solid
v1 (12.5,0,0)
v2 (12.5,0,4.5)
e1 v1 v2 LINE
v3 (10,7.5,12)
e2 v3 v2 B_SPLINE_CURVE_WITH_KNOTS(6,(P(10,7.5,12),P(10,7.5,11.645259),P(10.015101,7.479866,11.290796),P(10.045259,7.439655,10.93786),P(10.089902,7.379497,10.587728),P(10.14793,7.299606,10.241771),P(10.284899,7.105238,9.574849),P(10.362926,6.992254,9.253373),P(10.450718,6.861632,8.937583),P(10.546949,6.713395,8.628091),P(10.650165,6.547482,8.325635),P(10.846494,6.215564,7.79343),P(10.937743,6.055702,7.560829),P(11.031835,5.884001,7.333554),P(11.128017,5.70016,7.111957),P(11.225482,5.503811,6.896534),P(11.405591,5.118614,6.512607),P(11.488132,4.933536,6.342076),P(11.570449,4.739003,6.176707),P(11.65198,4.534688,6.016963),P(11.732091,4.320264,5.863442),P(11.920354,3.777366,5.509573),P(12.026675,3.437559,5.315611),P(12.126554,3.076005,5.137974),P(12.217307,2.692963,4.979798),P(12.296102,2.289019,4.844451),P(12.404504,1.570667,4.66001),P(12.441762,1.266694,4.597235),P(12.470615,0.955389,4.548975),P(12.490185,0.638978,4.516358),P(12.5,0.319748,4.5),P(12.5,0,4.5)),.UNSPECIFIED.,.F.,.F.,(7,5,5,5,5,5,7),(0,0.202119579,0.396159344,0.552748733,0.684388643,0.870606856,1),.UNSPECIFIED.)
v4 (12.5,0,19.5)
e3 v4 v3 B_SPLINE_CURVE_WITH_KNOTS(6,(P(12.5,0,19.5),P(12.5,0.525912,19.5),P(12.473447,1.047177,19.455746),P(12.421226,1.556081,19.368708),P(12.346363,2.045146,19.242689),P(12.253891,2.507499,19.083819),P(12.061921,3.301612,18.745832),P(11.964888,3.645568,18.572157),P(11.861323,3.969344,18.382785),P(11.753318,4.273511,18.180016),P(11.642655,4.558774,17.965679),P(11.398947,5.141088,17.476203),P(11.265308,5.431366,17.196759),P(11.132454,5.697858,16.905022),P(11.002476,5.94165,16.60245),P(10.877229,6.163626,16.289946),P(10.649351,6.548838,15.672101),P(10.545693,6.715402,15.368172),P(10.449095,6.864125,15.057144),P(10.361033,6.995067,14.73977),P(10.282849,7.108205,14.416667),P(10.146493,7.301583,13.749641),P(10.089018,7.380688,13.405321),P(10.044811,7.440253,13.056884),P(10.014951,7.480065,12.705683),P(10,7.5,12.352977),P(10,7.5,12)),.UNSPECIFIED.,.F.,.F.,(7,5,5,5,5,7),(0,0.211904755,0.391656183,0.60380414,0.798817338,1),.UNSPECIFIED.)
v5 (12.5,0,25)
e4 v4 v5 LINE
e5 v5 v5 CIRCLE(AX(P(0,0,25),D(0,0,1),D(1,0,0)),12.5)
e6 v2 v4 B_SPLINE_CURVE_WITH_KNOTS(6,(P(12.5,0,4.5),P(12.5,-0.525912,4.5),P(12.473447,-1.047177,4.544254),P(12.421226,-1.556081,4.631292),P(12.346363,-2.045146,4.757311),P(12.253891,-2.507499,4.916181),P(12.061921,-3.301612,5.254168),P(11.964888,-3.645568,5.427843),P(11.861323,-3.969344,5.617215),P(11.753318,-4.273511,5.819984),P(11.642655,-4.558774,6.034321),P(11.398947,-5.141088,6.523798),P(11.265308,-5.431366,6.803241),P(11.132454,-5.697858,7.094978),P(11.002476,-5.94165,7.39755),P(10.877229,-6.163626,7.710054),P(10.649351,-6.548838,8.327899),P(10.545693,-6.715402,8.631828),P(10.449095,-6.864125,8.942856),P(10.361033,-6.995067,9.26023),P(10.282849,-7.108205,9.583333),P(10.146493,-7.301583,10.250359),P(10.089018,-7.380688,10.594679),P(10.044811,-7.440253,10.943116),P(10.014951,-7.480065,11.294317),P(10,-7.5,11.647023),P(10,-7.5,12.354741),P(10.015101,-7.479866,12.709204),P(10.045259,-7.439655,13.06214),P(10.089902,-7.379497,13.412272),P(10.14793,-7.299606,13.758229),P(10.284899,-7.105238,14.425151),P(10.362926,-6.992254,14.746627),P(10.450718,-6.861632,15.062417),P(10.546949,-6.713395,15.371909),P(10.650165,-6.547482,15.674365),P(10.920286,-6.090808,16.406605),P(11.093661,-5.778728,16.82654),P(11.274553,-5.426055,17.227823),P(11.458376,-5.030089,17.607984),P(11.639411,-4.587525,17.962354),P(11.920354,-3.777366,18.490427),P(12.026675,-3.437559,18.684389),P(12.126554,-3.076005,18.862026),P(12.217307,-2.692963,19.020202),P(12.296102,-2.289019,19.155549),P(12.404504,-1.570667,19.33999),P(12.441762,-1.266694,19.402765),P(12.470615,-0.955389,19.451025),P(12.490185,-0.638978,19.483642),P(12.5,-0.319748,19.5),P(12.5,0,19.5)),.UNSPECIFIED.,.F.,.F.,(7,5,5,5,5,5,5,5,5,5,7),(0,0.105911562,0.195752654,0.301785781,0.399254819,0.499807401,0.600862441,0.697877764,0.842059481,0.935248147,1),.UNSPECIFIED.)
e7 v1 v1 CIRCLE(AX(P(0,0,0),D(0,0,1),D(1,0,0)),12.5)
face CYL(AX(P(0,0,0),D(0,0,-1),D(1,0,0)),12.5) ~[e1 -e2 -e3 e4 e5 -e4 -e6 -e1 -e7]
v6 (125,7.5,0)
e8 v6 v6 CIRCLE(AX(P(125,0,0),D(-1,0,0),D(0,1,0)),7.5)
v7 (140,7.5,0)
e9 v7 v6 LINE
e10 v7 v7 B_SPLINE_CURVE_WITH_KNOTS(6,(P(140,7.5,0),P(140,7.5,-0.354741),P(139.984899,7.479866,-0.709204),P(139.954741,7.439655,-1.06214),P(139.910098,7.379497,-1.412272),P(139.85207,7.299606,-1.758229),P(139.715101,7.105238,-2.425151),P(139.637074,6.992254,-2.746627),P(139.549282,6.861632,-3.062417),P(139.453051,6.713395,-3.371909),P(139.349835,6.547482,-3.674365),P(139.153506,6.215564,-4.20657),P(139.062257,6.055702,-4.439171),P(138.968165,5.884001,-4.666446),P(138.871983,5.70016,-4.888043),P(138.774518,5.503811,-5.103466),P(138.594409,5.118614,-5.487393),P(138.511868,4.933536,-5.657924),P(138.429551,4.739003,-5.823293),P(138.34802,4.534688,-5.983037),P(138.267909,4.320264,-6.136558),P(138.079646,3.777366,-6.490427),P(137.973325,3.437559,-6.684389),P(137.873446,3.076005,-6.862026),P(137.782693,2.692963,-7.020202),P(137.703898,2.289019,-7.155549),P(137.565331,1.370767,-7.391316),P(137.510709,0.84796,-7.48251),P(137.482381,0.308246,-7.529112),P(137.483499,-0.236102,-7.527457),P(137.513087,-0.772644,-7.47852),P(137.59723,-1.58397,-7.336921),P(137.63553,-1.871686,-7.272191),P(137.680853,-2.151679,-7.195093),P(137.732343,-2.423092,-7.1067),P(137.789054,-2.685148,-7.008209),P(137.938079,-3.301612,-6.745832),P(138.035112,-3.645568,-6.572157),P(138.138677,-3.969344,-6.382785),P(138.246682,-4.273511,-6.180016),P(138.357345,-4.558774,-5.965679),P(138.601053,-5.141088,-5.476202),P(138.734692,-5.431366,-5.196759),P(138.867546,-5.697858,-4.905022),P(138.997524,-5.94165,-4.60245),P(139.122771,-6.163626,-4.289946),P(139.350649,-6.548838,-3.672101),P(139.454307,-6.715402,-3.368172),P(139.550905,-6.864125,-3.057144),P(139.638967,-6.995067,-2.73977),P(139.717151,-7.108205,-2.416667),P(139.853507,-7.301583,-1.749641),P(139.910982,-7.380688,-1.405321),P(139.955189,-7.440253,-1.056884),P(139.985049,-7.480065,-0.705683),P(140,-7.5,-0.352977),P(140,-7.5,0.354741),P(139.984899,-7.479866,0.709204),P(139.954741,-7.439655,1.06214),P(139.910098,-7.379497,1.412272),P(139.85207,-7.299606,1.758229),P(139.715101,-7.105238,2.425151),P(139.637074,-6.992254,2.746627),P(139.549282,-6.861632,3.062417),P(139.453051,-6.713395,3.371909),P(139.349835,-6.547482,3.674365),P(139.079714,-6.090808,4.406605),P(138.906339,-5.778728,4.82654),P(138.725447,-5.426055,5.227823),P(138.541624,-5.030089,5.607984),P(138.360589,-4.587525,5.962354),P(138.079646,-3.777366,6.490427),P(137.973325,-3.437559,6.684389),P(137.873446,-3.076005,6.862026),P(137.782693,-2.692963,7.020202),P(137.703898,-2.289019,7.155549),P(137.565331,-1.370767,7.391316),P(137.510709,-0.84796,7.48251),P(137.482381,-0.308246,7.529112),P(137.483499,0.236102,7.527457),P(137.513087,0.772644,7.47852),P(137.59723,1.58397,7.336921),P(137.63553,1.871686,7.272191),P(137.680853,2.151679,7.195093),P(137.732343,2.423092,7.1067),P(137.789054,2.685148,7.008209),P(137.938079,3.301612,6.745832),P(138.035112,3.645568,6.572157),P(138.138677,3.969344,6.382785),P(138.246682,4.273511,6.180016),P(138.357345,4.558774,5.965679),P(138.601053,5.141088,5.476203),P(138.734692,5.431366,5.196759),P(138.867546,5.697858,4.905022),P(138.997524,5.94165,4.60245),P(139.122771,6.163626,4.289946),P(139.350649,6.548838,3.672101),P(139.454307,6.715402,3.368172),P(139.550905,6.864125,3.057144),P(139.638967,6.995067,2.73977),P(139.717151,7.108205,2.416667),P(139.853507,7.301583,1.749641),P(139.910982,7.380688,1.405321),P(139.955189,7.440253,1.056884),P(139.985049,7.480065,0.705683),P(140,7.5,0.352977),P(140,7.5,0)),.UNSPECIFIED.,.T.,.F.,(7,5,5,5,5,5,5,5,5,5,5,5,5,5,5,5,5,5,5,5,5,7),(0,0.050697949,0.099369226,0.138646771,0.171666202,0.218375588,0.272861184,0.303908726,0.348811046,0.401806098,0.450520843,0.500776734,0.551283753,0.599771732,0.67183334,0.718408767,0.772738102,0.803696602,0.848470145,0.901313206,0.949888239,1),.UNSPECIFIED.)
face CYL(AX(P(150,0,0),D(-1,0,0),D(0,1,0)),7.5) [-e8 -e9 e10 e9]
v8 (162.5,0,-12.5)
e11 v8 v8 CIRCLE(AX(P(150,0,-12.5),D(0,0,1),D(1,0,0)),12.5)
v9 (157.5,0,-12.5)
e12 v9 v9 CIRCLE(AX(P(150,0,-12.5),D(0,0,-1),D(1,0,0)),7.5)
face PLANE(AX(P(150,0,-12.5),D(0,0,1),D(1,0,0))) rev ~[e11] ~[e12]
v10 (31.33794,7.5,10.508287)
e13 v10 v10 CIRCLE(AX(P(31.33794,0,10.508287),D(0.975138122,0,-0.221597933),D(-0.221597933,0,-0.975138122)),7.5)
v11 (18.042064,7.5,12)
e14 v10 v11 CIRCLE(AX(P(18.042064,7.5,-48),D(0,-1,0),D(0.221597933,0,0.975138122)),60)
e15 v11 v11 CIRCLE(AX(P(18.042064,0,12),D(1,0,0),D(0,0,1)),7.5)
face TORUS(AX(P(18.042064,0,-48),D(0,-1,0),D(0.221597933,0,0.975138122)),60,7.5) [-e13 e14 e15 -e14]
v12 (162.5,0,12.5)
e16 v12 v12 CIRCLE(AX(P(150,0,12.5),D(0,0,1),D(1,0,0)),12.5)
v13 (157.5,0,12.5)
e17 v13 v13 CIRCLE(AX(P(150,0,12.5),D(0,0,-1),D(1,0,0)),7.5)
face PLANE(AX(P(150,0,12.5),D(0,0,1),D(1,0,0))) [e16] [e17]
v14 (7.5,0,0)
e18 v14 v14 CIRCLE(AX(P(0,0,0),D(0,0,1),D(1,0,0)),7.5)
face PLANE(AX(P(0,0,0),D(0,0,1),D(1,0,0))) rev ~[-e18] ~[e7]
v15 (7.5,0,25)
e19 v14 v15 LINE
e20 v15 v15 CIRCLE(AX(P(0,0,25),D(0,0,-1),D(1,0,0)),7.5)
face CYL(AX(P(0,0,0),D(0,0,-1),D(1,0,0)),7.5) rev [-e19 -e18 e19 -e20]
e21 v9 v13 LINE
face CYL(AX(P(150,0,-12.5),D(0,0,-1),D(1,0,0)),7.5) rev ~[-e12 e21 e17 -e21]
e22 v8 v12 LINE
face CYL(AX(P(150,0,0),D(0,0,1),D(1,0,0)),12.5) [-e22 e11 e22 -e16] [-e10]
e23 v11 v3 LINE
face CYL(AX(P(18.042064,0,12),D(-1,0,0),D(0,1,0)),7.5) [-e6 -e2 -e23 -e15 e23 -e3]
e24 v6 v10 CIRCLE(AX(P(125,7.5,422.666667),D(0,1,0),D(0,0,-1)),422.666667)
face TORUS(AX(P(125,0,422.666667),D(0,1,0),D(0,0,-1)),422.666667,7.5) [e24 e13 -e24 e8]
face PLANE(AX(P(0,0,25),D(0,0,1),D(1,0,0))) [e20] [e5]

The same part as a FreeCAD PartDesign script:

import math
import FreeCAD as App
import Part
import Sketcher
Q = App.Units.Quantity

doc = App.newDocument("Part")
body = doc.addObject("PartDesign::Body", "Body")

sketch1 = body.newObject("Sketcher::SketchObject", "Sketch")
sketch1.AttachmentSupport = (doc.getObject("YZ_Plane"), [""])
sketch1.MapMode = "FlatFace"
sketch1.addGeometry(Part.Circle(App.Vector(0, 12, 0), App.Vector(0, 0, 1), 7.5), False)
sketch1.addConstraint([
    Sketcher.Constraint("PointOnObject", 0, 3, -2),
    Sketcher.Constraint("Diameter", 0, Q("15 mm")),
    Sketcher.Constraint("DistanceY", -1, 1, 0, 3, Q("12 mm")),
])

sketch2 = body.newObject("Sketcher::SketchObject", "Sketch001")
sketch2.AttachmentSupport = (doc.getObject("XZ_Plane"), [""])
sketch2.MapMode = "FlatFace"
sketch2.addGeometry([
    Part.LineSegment(App.Vector(150, 0, 0), App.Vector(125, 0, 0)),
    Part.ArcOfCircle(Part.Circle(App.Vector(125, 422.666667, 0), App.Vector(0, 0, 1), 422.666667), math.radians(-102.802905), math.radians(-90)),
    Part.ArcOfCircle(Part.Circle(App.Vector(18.042064, -48, 0), App.Vector(0, 0, 1), 60), math.radians(77.197095), math.radians(90)),
    Part.LineSegment(App.Vector(18.042064, 12, 0), App.Vector(0, 12, 0)),
], False)
sketch2.addConstraint([
    Sketcher.Constraint("Tangent", 0, 2, 1, 2),
    Sketcher.Constraint("Tangent", 1, 1, 2, 1),
    Sketcher.Constraint("Tangent", 2, 2, 3, 1),
    Sketcher.Constraint("Horizontal", 0),
    Sketcher.Constraint("Horizontal", 3),
    Sketcher.Constraint("PointOnObject", 0, 1, -1),
    Sketcher.Constraint("PointOnObject", 3, 2, -2),
    Sketcher.Constraint("Radius", 2, Q("60 mm")),
    Sketcher.Constraint("DistanceX", 0, 2, 0, 1, Q("25 mm")),
    Sketcher.Constraint("DistanceX", -1, 1, 1, 3, Q("125 mm")),
    Sketcher.Constraint("DistanceY", 2, 3, -1, 1, Q("48 mm")),
    Sketcher.Constraint("Radius", 1, Q("422.666667 mm")),
])
doc.recompute()

additivepipe = body.newObject("PartDesign::AdditivePipe", "AdditivePipe")
additivepipe.Profile = sketch1
additivepipe.Spine = (sketch2, ["Edge1", "Edge2", "Edge3", "Edge4"])

sketch3 = body.newObject("Sketcher::SketchObject", "Sketch002")
sketch3.AttachmentSupport = (doc.getObject("XY_Plane"), [""])
sketch3.MapMode = "FlatFace"
sketch3.addGeometry(Part.Circle(App.Vector(0, 0, 0), App.Vector(0, 0, 1), 12.5), False)
sketch3.addConstraint([
    Sketcher.Constraint("Coincident", 0, 3, -1, 1),
    Sketcher.Constraint("Diameter", 0, Q("25 mm")),
])
pad1 = body.newObject("PartDesign::Pad", "Pad")
pad1.Profile = sketch3
pad1.Length = 25

sketch4 = body.newObject("Sketcher::SketchObject", "Sketch003")
sketch4.AttachmentSupport = (doc.getObject("XY_Plane"), [""])
sketch4.MapMode = "FlatFace"
sketch4.addGeometry(Part.Circle(App.Vector(0, 0, 0), App.Vector(0, 0, 1), 7.5), False)
sketch4.addConstraint([
    Sketcher.Constraint("Coincident", 0, 3, -1, 1),
    Sketcher.Constraint("Diameter", 0, Q("15 mm")),
])
pocket1 = body.newObject("PartDesign::Pocket", "Pocket")
pocket1.Profile = sketch4
pocket1.Type = "ThroughAll"
pocket1.Reversed = True

sketch5 = body.newObject("Sketcher::SketchObject", "Sketch004")
sketch5.AttachmentSupport = (doc.getObject("XY_Plane"), [""])
sketch5.MapMode = "FlatFace"
sketch5.addGeometry(Part.Circle(App.Vector(150, 0, 0), App.Vector(0, 0, 1), 12.5), False)
sketch5.addConstraint([
    Sketcher.Constraint("PointOnObject", 0, 3, -1),
    Sketcher.Constraint("Diameter", 0, Q("25 mm")),
    Sketcher.Constraint("DistanceX", -1, 1, 0, 3, Q("150 mm")),
])
pad2 = body.newObject("PartDesign::Pad", "Pad001")
pad2.Profile = sketch5
pad2.Length = 25
pad2.Midplane = True

sketch6 = body.newObject("Sketcher::SketchObject", "Sketch005")
sketch6.AttachmentSupport = (doc.getObject("XY_Plane"), [""])
sketch6.MapMode = "FlatFace"
sketch6.AttachmentOffset = App.Placement(App.Vector(0, 0, -12.5), App.Rotation())
sketch6.addGeometry(Part.Circle(App.Vector(150, 0, 0), App.Vector(0, 0, 1), 7.5), False)
sketch6.addConstraint([
    Sketcher.Constraint("PointOnObject", 0, 3, -1),
    Sketcher.Constraint("Diameter", 0, Q("15 mm")),
    Sketcher.Constraint("DistanceX", -1, 1, 0, 3, Q("150 mm")),
])
pocket2 = body.newObject("PartDesign::Pocket", "Pocket001")
pocket2.Profile = sketch6
pocket2.Type = "ThroughAll"
pocket2.Reversed = True

doc.recompute()
